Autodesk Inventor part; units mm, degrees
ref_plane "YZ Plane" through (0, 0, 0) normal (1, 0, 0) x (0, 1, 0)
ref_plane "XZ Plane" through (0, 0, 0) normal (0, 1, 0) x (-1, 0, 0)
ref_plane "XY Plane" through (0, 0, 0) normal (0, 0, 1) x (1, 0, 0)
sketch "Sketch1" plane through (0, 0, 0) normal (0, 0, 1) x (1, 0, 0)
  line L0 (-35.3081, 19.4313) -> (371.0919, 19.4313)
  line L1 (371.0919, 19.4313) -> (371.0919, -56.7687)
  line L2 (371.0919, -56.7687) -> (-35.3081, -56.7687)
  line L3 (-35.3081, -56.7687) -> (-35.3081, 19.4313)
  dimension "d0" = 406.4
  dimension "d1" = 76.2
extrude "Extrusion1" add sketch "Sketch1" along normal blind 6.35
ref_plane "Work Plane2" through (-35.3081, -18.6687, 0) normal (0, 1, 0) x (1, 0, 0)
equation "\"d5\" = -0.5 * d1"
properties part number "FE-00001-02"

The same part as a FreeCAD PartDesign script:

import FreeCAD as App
import Part
import Sketcher
Q = App.Units.Quantity

doc = App.newDocument("Part")
body = doc.addObject("PartDesign::Body", "Body")

# Sketch on XY plane
sketch1 = body.newObject("Sketcher::SketchObject", "Sketch")
sketch1.AttachmentSupport = (doc.getObject("XY_Plane"), [""])
sketch1.MapMode = "FlatFace"
sketch1.addGeometry(Part.LineSegment(App.Vector(371, 19, 0), App.Vector(-35, 19, 0)), False)
sketch1.addGeometry(Part.LineSegment(App.Vector(-35, 19, 0), App.Vector(-35, -57, 0)), False)
sketch1.addGeometry(Part.LineSegment(App.Vector(-35, -57, 0), App.Vector(371, -57, 0)), False)
sketch1.addGeometry(Part.LineSegment(App.Vector(371, -57, 0), App.Vector(371, 19, 0)), False)
sketch1.addConstraint(Sketcher.Constraint("Coincident", 0, 2, 1, 1))
sketch1.addConstraint(Sketcher.Constraint("Coincident", 1, 2, 2, 1))
sketch1.addConstraint(Sketcher.Constraint("Coincident", 2, 2, 3, 1))
sketch1.addConstraint(Sketcher.Constraint("Coincident", 3, 2, 0, 1))
sketch1.addConstraint(Sketcher.Constraint("Horizontal", 0))
sketch1.addConstraint(Sketcher.Constraint("Vertical", 1))
sketch1.addConstraint(Sketcher.Constraint("Horizontal", 2))
sketch1.addConstraint(Sketcher.Constraint("Vertical", 3))
sketch1.addConstraint(Sketcher.Constraint("DistanceX", 0, 2, 0, 1, Q("16 in")))
sketch1.addConstraint(Sketcher.Constraint("DistanceY", 1, 2, 1, 1, Q("3 in")))
sketch1.addConstraint(Sketcher.Constraint("DistanceY", -1, 1, 0, 2, Q("0.765 in")))
sketch1.addConstraint(Sketcher.Constraint("DistanceX", 0, 2, -1, 1, Q("35.308 mm")))
pad1 = body.newObject("PartDesign::Pad", "Pad")
pad1.Profile = sketch1
pad1.Length = Q("0.25 in")

doc.recompute()
